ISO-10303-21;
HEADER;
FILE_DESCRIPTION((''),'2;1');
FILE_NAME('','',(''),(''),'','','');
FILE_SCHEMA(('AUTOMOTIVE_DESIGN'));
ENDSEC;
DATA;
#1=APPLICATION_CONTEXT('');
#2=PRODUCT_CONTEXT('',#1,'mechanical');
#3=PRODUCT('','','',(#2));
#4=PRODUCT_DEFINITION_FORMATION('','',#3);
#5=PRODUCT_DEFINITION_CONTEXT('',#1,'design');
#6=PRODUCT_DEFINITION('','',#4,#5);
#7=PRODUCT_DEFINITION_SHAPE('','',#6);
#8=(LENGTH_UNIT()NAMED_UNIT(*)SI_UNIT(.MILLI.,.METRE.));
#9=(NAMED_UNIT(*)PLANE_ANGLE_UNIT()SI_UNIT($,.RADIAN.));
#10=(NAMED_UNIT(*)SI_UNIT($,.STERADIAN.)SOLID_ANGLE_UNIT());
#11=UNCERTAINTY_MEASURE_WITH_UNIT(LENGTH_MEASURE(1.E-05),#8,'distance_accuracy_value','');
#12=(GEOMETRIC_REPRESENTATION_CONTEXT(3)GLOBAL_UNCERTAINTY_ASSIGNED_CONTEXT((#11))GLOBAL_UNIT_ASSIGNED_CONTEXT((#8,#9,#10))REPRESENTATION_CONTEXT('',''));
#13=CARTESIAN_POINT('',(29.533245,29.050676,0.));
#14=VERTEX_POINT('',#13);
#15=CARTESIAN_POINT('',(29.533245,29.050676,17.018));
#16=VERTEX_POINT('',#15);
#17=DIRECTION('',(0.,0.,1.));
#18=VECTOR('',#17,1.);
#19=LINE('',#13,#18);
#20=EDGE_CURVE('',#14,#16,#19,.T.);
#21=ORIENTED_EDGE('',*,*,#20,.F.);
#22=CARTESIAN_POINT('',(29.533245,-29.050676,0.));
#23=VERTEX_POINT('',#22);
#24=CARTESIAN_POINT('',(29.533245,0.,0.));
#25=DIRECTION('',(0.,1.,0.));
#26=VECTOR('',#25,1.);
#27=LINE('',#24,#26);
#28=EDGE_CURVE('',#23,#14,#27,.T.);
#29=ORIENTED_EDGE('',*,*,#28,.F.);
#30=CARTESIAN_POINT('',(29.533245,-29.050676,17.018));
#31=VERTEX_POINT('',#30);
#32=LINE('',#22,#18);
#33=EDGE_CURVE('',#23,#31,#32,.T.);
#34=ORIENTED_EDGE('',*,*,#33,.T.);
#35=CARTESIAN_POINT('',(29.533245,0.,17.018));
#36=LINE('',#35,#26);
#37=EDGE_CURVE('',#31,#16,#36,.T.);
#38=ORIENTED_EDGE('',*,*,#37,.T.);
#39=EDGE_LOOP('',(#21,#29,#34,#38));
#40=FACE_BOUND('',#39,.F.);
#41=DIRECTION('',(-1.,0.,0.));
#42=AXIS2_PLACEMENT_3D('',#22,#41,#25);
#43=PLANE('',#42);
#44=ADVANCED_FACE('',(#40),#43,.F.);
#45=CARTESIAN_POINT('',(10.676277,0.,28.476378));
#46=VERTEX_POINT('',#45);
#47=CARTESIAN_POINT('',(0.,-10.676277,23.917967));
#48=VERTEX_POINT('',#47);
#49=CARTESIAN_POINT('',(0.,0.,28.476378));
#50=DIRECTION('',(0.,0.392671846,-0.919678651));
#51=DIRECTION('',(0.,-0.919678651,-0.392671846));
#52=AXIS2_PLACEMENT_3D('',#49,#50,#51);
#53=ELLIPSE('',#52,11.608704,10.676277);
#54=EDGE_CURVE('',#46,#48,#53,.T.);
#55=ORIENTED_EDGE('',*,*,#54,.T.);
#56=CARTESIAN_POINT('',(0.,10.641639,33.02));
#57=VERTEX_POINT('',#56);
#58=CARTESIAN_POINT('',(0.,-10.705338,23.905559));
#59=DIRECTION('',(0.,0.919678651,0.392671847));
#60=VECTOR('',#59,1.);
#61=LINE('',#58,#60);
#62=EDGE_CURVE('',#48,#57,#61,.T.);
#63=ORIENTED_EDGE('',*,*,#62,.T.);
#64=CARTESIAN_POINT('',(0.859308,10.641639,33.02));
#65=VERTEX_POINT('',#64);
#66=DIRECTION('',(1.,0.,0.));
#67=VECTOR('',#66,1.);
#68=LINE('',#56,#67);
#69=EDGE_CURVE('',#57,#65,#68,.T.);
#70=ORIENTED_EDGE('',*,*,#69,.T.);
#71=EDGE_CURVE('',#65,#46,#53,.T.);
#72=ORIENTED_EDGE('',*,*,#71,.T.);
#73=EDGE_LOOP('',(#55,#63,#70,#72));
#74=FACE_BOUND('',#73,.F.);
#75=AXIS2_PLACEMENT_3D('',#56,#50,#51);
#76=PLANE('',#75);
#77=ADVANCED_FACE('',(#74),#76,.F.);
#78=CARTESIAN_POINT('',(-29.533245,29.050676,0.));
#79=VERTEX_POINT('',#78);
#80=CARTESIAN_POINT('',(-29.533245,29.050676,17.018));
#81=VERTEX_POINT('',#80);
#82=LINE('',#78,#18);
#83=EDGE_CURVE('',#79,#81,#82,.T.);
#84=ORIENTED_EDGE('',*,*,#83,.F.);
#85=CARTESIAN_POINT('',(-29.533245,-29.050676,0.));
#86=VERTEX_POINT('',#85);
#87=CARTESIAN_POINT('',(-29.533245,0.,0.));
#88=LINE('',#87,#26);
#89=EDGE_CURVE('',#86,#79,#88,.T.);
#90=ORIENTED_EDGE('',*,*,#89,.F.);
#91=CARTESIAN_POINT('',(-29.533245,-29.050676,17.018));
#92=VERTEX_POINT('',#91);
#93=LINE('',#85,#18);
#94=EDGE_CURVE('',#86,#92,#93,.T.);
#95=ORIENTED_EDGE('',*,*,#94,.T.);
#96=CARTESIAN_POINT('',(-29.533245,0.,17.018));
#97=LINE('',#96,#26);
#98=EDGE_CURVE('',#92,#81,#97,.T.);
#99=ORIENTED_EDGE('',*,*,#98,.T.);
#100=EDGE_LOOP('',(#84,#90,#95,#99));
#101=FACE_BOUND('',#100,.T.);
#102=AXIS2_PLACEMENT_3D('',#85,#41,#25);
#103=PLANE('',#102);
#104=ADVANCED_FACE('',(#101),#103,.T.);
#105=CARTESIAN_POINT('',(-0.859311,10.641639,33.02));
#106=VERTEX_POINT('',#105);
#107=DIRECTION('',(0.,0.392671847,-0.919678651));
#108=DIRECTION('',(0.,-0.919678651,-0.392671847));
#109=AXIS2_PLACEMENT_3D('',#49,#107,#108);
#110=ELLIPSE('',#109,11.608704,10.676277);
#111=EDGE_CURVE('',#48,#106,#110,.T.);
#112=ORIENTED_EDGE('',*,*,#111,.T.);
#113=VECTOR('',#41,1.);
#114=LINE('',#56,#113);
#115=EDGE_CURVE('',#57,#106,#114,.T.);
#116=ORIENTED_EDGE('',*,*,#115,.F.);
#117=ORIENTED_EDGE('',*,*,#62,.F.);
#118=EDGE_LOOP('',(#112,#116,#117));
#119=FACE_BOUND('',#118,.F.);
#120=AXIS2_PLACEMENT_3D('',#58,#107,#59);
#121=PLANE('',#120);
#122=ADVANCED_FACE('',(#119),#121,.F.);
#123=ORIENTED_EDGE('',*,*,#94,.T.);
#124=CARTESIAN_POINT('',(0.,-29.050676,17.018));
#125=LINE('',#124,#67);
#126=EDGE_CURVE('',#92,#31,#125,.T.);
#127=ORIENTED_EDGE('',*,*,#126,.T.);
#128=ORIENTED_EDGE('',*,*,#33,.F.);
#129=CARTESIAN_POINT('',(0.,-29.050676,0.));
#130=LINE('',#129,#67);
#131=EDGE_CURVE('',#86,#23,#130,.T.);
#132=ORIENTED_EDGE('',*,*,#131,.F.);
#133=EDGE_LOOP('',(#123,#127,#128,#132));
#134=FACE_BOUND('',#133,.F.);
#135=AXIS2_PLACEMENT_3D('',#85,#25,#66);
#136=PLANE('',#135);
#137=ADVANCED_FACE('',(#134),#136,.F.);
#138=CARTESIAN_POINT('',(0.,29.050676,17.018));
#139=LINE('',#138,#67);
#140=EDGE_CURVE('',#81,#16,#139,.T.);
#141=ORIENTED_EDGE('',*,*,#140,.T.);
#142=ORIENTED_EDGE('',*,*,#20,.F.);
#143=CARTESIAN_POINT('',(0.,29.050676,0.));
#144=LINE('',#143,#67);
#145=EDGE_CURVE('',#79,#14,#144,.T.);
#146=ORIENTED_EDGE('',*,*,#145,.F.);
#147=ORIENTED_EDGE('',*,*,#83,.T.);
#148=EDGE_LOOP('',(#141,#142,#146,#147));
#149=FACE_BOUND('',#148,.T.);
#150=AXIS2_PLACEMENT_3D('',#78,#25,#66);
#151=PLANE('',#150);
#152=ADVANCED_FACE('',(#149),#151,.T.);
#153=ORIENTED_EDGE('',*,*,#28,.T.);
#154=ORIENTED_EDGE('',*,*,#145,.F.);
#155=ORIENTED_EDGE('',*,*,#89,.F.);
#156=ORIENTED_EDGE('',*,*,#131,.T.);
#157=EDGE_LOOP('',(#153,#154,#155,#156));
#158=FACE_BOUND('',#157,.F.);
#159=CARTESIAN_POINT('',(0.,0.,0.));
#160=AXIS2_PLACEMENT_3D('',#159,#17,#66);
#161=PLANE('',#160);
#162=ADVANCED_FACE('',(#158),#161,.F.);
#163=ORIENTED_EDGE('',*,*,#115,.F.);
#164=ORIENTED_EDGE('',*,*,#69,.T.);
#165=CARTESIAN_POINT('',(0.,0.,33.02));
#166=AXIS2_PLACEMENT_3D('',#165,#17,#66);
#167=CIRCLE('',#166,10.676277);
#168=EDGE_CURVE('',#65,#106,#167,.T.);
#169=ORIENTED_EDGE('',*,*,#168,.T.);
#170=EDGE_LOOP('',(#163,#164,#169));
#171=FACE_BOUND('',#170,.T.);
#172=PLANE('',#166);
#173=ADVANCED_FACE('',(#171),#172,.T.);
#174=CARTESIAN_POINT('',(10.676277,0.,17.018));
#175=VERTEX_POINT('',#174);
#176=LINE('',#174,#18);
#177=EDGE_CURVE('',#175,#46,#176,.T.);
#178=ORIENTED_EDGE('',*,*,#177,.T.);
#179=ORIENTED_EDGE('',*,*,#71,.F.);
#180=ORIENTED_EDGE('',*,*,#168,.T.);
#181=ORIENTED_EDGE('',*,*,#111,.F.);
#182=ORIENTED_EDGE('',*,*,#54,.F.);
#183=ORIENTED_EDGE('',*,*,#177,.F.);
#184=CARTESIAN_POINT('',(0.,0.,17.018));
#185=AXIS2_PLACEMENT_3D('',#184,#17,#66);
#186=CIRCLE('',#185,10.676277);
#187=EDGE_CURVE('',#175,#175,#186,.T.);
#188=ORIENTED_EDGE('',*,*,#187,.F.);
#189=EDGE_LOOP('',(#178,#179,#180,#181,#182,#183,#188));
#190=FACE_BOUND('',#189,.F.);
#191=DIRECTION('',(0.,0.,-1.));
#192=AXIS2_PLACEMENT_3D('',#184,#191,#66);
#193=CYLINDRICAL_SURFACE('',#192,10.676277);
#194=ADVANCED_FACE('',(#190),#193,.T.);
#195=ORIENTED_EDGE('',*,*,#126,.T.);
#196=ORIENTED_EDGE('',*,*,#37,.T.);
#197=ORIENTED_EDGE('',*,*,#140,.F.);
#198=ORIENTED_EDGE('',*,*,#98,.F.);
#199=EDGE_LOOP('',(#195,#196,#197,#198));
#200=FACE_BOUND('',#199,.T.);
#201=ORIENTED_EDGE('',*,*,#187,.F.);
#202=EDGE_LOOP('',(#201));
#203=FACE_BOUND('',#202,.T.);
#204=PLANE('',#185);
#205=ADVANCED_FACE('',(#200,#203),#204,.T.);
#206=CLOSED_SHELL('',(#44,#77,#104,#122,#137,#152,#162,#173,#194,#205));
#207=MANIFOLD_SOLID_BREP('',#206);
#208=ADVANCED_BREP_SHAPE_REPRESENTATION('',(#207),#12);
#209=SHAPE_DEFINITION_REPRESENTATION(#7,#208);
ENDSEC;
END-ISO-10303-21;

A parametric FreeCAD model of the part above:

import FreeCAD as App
import Part
import Sketcher

V = App.Vector
Q = App.Units.Quantity

doc = App.newDocument("Part")
body = doc.addObject("PartDesign::Body", "Body")

# Sketch on XY plane
sketch1 = body.newObject("Sketcher::SketchObject", "Sketch")
sketch1.AttachmentSupport = (doc.getObject("XY_Plane"), [""])
sketch1.MapMode = "FlatFace"
sketch1.addGeometry([
    Part.LineSegment(V(-30, 29, 0), V(-30, -29, 0)),
    Part.LineSegment(V(-30, -29, 0), V(30, -29, 0)),
    Part.LineSegment(V(30, -29, 0), V(30, 29, 0)),
    Part.LineSegment(V(30, 29, 0), V(-30, 29, 0)),
], False)
sketch1.addConstraint([
    Sketcher.Constraint("Coincident", 0, 2, 1, 1),
    Sketcher.Constraint("Coincident", 1, 2, 2, 1),
    Sketcher.Constraint("Coincident", 2, 2, 3, 1),
    Sketcher.Constraint("Coincident", 3, 2, 0, 1),
    Sketcher.Constraint("Vertical", 0),
    Sketcher.Constraint("Horizontal", 1),
    Sketcher.Constraint("Vertical", 2),
    Sketcher.Constraint("Horizontal", 3),
    Sketcher.Constraint("Symmetric", 0, 2, 2, 2, -1, 1),
    Sketcher.Constraint("DistanceX", 1, 1, 1, 2, 59.06649),
    Sketcher.Constraint("DistanceY", 0, 2, 0, 1, 58.101352),
])
pad1 = body.newObject("PartDesign::Pad", "Pad")
pad1.Profile = sketch1
pad1.Length = Q("0.67 in")

# Sketch on XY plane
sketch2 = body.newObject("Sketcher::SketchObject", "Sketch001")
sketch2.AttachmentSupport = (doc.getObject("XY_Plane"), [""])
sketch2.MapMode = "FlatFace"
sketch2.AttachmentOffset = App.Placement(V(0, 0, 0.67 * 25.4), App.Rotation())
sketch2.addGeometry(Part.Circle(V(0, 0, 0), V(0, 0, 1), 11), False)
sketch2.addConstraint([
    Sketcher.Constraint("Coincident", 0, 3, -1, 1),
    Sketcher.Constraint("Diameter", 0, 21.352554),
])
pad2 = body.newObject("PartDesign::Pad", "Pad001")
pad2.Profile = sketch2
pad2.Length = Q("0.63 in")

# Sketch on YZ plane
sketch3 = body.newObject("Sketcher::SketchObject", "Sketch002")
sketch3.AttachmentSupport = (doc.getObject("YZ_Plane"), [""])
sketch3.MapMode = "FlatFace"
sketch3.addGeometry([
    Part.LineSegment(V(-11, 24, 0), V(11, 33, 0)),
    Part.LineSegment(V(11, 33, 0), V(-11, 33, 0)),
    Part.LineSegment(V(-11, 33, 0), V(-11, 24, 0)),
], False)
sketch3.addConstraint([
    Sketcher.Constraint("Coincident", 0, 2, 1, 1),
    Sketcher.Constraint("Coincident", 1, 2, 2, 1),
    Sketcher.Constraint("Coincident", 2, 2, 0, 1),
    Sketcher.Constraint("Horizontal", 1),
    Sketcher.Constraint("Vertical", 2),
    Sketcher.Constraint("DistanceY", 2, 2, 2, 1, 9.13172),
    Sketcher.Constraint("DistanceX", 1, 2, 1, 1, 21.387446),
    Sketcher.Constraint("DistanceY", -1, 1, 0, 2, 33.037279),
    Sketcher.Constraint("DistanceX", -1, 1, 0, 2, 10.682108),
])
pocket1 = body.newObject("PartDesign::Pocket", "Pocket")
pocket1.Profile = sketch3
pocket1.Type = "ThroughAll"

# Sketch on YZ plane
sketch4 = body.newObject("Sketcher::SketchObject", "Sketch003")
sketch4.AttachmentSupport = (doc.getObject("YZ_Plane"), [""])
sketch4.MapMode = "FlatFace"
sketch4.addGeometry([
    Part.LineSegment(V(-11, 24, 0), V(-11, 33, 0)),
    Part.LineSegment(V(-11, 33, 0), V(11, 33, 0)),
    Part.LineSegment(V(11, 33, 0), V(-11, 24, 0)),
], False)
sketch4.addConstraint([
    Sketcher.Constraint("Coincident", 0, 2, 1, 1),
    Sketcher.Constraint("Coincident", 1, 2, 2, 1),
    Sketcher.Constraint("Coincident", 2, 2, 0, 1),
    Sketcher.Constraint("Vertical", 0),
    Sketcher.Constraint("Horizontal", 1),
    Sketcher.Constraint("DistanceY", -1, 1, 0, 2, Q("1.3 in")),
    Sketcher.Constraint("DistanceX", 1, 1, 1, 2, 21.317916),
    Sketcher.Constraint("DistanceY", 0, 1, 0, 2, 9.102033),
    Sketcher.Constraint("DistanceX", -1, 1, 1, 2, 10.641639),
])
pocket2 = body.newObject("PartDesign::Pocket", "Pocket001")
pocket2.Profile = sketch4
pocket2.Type = "ThroughAll"
pocket2.Reversed = True

doc.recompute()
